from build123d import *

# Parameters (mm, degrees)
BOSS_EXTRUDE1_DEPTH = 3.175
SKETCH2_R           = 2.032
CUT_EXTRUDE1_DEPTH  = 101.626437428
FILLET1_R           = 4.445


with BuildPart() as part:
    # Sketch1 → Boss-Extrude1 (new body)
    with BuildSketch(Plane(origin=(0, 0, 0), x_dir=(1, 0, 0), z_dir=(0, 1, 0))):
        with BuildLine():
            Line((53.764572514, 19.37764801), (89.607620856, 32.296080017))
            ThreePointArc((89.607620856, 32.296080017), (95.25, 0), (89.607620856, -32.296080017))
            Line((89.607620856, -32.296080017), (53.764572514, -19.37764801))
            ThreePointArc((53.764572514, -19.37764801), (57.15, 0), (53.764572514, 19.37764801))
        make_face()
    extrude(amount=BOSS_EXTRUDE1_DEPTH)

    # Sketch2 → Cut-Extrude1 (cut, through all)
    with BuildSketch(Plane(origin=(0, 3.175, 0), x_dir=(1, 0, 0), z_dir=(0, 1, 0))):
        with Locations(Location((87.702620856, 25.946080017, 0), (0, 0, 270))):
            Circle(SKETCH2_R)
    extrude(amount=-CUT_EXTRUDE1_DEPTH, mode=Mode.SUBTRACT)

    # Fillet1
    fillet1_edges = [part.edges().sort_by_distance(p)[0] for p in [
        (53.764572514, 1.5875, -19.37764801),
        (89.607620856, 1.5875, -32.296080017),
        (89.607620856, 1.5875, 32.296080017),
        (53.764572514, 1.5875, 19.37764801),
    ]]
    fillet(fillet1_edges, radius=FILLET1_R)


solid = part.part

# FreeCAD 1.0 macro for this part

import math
import FreeCAD as App
import Part
import Sketcher
from FreeCAD import Vector
Q = App.Units.Quantity


def edges_at(feature, points):
    """Names of the edges that pass closest to the given points."""
    edges = feature.Shape.Edges
    near = lambda p: min(range(len(edges)), key=lambda i: edges[i].distToShape(Part.Vertex(*p))[0])
    return sorted({f"Edge{near(p) + 1}" for p in points})

doc = App.newDocument("Part")
body = doc.addObject("PartDesign::Body", "Body")

# Sketch on XZ plane
sketch1 = doc.addObject("Sketcher::SketchObject", "Sketch")
body.addObject(sketch1)
sketch1.AttachmentSupport = (doc.XZ_Plane, [""])
sketch1.MapMode = "FlatFace"
sketch1.addGeometry([
    Part.LineSegment(Vector(90, -32, 0), Vector(54, -19, 0)),
    Part.ArcOfCircle(Part.Circle(Vector(0, 0, 0), Vector(0, 0, 1), 57), math.radians(-20), math.radians(20)),
    Part.LineSegment(Vector(54, 19, 0), Vector(90, 32, 0)),
    Part.ArcOfCircle(Part.Circle(Vector(0, 0, 0), Vector(0, 0, 1), 95), math.radians(-20), math.radians(20)),
], False)
sketch1.addConstraint([
    Sketcher.Constraint("Coincident", 0, 2, 1, 1),
    Sketcher.Constraint("Coincident", 1, 2, 2, 1),
    Sketcher.Constraint("Coincident", 2, 2, 3, 2),
    Sketcher.Constraint("Coincident", 3, 1, 0, 1),
    Sketcher.Constraint("Coincident", 1, 3, -1, 1),
    Sketcher.Constraint("Coincident", 3, 3, -1, 1),
    Sketcher.Constraint("Vertical", 0, 2, 1, 2),
    Sketcher.Constraint("Vertical", 2, 2, 3, 1),
    Sketcher.Constraint("Radius", 1, Q("2.25 in")),
    Sketcher.Constraint("Radius", 3, Q("3.75 in")),
    Sketcher.Constraint("Angle", 0, Q("160.179992 deg")),
    Sketcher.Constraint("DistanceY", 0, 2, -1, 1, 19.377648),
])
pad1 = doc.addObject("PartDesign::Pad", "Pad")
body.addObject(pad1)
pad1.Profile = sketch1
pad1.Length = Q("0.125 in")
pad1.Reversed = True

# Sketch on XZ plane
sketch2 = doc.addObject("Sketcher::SketchObject", "Sketch001")
body.addObject(sketch2)
sketch2.AttachmentSupport = (doc.XZ_Plane, [""])
sketch2.MapMode = "FlatFace"
sketch2.AttachmentOffset = App.Placement(Vector(0, 0, -0.125 * 25.4), App.Rotation())
sketch2.addGeometry(Part.Circle(Vector(87.7, -25.9, 0), Vector(0, 0, 1), 2), False)
sketch2.addConstraint([
    Sketcher.Constraint("Diameter", 0, Q("0.16 in")),
    Sketcher.Constraint("DistanceX", -1, 1, 0, 3, 87.702621),
    Sketcher.Constraint("DistanceY", 0, 3, -1, 1, 25.94608),
])
pocket1 = doc.addObject("PartDesign::Pocket", "Pocket")
body.addObject(pocket1)
pocket1.Profile = sketch2
pocket1.Type = "ThroughAll"
pocket1.Reversed = True
doc.recompute()

fillet = doc.addObject("PartDesign::Fillet", "Fillet")
body.addObject(fillet)
fillet.Base = (pocket1, edges_at(pocket1, [
    (53.765, 1.587, -19.378),
    (89.608, 1.587, -32.296),
    (89.608, 1.587, 32.296),
    (53.765, 1.587, 19.378),
]))
fillet.Radius = Q("0.175 in")

doc.recompute()
